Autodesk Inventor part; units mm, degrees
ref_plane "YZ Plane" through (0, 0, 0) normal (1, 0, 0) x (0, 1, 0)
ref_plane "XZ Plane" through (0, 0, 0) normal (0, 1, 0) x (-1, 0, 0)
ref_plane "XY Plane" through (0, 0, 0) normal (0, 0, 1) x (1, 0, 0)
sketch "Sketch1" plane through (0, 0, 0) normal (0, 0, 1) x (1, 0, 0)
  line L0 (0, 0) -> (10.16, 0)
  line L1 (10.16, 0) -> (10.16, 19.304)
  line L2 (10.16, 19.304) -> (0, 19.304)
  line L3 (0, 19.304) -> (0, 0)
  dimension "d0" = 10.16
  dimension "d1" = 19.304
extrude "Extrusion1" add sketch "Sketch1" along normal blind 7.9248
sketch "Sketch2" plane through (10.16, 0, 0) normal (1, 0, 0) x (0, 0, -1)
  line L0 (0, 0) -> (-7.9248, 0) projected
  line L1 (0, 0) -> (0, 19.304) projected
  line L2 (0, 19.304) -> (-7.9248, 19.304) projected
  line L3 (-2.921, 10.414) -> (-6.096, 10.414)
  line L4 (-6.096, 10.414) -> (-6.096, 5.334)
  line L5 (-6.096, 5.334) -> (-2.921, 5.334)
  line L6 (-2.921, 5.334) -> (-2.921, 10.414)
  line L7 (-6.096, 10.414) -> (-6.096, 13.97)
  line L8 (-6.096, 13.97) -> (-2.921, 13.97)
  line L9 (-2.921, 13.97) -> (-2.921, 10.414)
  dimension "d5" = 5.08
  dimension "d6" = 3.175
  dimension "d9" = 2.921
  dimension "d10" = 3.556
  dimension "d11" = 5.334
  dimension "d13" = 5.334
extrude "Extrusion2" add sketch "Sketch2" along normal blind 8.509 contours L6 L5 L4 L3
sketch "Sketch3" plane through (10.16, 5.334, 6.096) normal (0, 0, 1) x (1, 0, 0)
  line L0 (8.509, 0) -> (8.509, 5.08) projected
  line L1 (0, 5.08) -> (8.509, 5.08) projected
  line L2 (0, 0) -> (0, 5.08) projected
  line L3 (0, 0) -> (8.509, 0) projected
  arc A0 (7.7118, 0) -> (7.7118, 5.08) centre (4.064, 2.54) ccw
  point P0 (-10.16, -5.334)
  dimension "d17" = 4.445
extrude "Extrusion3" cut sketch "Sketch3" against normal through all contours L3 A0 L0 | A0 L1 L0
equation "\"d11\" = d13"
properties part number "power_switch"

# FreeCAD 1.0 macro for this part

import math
import FreeCAD as App
import Part
import Sketcher

V = App.Vector
Q = App.Units.Quantity

doc = App.newDocument("Part")
params = doc.addObject("Spreadsheet::Sheet", "Params")
for row, (alias, value) in enumerate([
    ("sketch1_width", "0.4 in"),
    ("sketch1_height", "0.76 in"),
    ("pad1_length", "0.312 in"),
    ("sketch2_width", "0.2 in"),
    ("sketch2_height", "0.125 in"),
    ("pad2_length", "0.335 in"),
    ("sketch3_radius", "0.175 in"),
    ("sketch3_height", "0.1 in"),
], start=1):
    params.set(f"A{row}", alias)
    params.set(f"B{row}", "=" + value)
    params.setAlias(f"B{row}", alias)

body = doc.addObject("PartDesign::Body", "Body")

sketch1 = body.newObject("Sketcher::SketchObject", "Sketch")
sketch1.AttachmentSupport = (doc.getObject("XY_Plane"), [""])
sketch1.MapMode = "FlatFace"
sketch1.addGeometry([
    Part.LineSegment(V(0, 19, 0), V(0, 0, 0)),
    Part.LineSegment(V(0, 0, 0), V(10, 0, 0)),
    Part.LineSegment(V(10, 0, 0), V(10, 19, 0)),
    Part.LineSegment(V(10, 19, 0), V(0, 19, 0)),
], False)
sketch1.addConstraint([
    Sketcher.Constraint("Coincident", 0, 2, 1, 1),
    Sketcher.Constraint("Coincident", 1, 2, 2, 1),
    Sketcher.Constraint("Coincident", 2, 2, 3, 1),
    Sketcher.Constraint("Coincident", 3, 2, 0, 1),
    Sketcher.Constraint("Vertical", 0),
    Sketcher.Constraint("Horizontal", 1),
    Sketcher.Constraint("Vertical", 2),
    Sketcher.Constraint("Horizontal", 3),
    Sketcher.Constraint("Coincident", 0, 2, -1, 1),
    Sketcher.Constraint("DistanceX", 1, 1, 1, 2, Q("0.4 in")),
    Sketcher.Constraint("DistanceY", 0, 2, 0, 1, Q("0.76 in")),
])
sketch1.setExpression("Constraints[9]", "Params.sketch1_width")
sketch1.setExpression("Constraints[10]", "Params.sketch1_height")
pad1 = body.newObject("PartDesign::Pad", "Pad")
pad1.Profile = sketch1
pad1.setExpression("Length", "Params.pad1_length")

sketch2 = body.newObject("Sketcher::SketchObject", "Sketch001")
sketch2.AttachmentSupport = (doc.getObject("YZ_Plane"), [""])
sketch2.MapMode = "FlatFace"
sketch2.AttachmentOffset = App.Placement(V(0, 0, 0.4 * 25.4), App.Rotation())
sketch2.addGeometry([
    Part.LineSegment(V(5.3, 2.9, 0), V(10.4, 2.9, 0)),
    Part.LineSegment(V(10.4, 2.9, 0), V(10.4, 6.1, 0)),
    Part.LineSegment(V(10.4, 6.1, 0), V(5.3, 6.1, 0)),
    Part.LineSegment(V(5.3, 6.1, 0), V(5.3, 2.9, 0)),
], False)
sketch2.addConstraint([
    Sketcher.Constraint("Coincident", 0, 2, 1, 1),
    Sketcher.Constraint("Coincident", 1, 2, 2, 1),
    Sketcher.Constraint("Coincident", 2, 2, 3, 1),
    Sketcher.Constraint("Coincident", 3, 2, 0, 1),
    Sketcher.Constraint("Horizontal", 0),
    Sketcher.Constraint("Vertical", 1),
    Sketcher.Constraint("Horizontal", 2),
    Sketcher.Constraint("Vertical", 3),
    Sketcher.Constraint("DistanceX", 0, 1, 0, 2, Q("0.2 in")),
    Sketcher.Constraint("DistanceY", 1, 1, 1, 2, Q("0.125 in")),
    Sketcher.Constraint("DistanceX", -1, 1, 2, 2, Q("0.21 in")),
    Sketcher.Constraint("DistanceY", -1, 1, 0, 2, Q("0.115 in")),
])
sketch2.setExpression("Constraints[8]", "Params.sketch2_width")
sketch2.setExpression("Constraints[9]", "Params.sketch2_height")
pad2 = body.newObject("PartDesign::Pad", "Pad001")
pad2.Profile = sketch2
pad2.setExpression("Length", "Params.pad2_length")

sketch3 = body.newObject("Sketcher::SketchObject", "Sketch002")
sketch3.AttachmentSupport = (doc.getObject("XY_Plane"), [""])
sketch3.MapMode = "FlatFace"
sketch3.AttachmentOffset = App.Placement(V(0, 0, 0.24 * 25.4), App.Rotation())
sketch3.addGeometry([
    Part.LineSegment(V(17.9, 5.3, 0), V(18.7, 5.3, 0)),
    Part.LineSegment(V(18.7, 5.3, 0), V(18.7, 7.9, 0)),
    Part.ArcOfCircle(Part.Circle(V(14.2, 7.9, 0), V(0, 0, 1), 4.4), math.radians(-35), math.radians(0)),
    Part.ArcOfCircle(Part.Circle(V(14.2, 7.9, 0), V(0, 0, 1), 4.4), math.radians(0), math.radians(35)),
    Part.LineSegment(V(18.7, 7.9, 0), V(18.7, 10.4, 0)),
    Part.LineSegment(V(18.7, 10.4, 0), V(17.9, 10.4, 0)),
], False)
sketch3.addConstraint([
    Sketcher.Constraint("Coincident", 0, 2, 1, 1),
    Sketcher.Constraint("Tangent", 1, 2, 2, 2),
    Sketcher.Constraint("Coincident", 2, 1, 0, 1),
    Sketcher.Constraint("Tangent", 3, 1, 4, 1),
    Sketcher.Constraint("Coincident", 4, 2, 5, 1),
    Sketcher.Constraint("Coincident", 5, 2, 3, 2),
    Sketcher.Constraint("Horizontal", 0),
    Sketcher.Constraint("Vertical", 1),
    Sketcher.Constraint("Vertical", 4),
    Sketcher.Constraint("Horizontal", 5),
    Sketcher.Constraint("Coincident", 3, 3, 2, 3),
    Sketcher.Constraint("Equal", 2, 3),
    Sketcher.Constraint("Vertical", 2, 1, 5, 2),
    Sketcher.Constraint("Radius", 2, Q("0.175 in")),
    Sketcher.Constraint("DistanceY", 1, 1, 1, 2, Q("0.1 in")),
    Sketcher.Constraint("DistanceX", -1, 1, 2, 3, Q("0.56 in")),
    Sketcher.Constraint("DistanceY", -1, 1, 2, 3, Q("0.31 in")),
])
sketch3.setExpression("Constraints[13]", "Params.sketch3_radius")
sketch3.setExpression("Constraints[14]", "Params.sketch3_height")
pocket1 = body.newObject("PartDesign::Pocket", "Pocket")
pocket1.Profile = sketch3
pocket1.Type = "ThroughAll"

doc.recompute()
